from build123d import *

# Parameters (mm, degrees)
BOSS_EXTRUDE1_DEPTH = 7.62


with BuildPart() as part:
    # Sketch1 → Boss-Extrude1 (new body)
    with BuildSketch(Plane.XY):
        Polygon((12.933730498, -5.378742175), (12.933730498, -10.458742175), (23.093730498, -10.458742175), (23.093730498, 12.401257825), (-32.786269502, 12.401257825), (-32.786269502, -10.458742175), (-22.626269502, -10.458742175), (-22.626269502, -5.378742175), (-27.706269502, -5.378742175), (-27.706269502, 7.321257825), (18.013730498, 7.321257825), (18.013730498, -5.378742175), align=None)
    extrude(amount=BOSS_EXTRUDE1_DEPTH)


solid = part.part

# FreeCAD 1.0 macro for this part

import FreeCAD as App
import Part
import Sketcher

V = App.Vector
Q = App.Units.Quantity


def add_polygon(sketch, points):
    """Adds a closed chain of lines whose ends are joined by coincident constraints."""
    first, n = sketch.GeometryCount, len(points)
    for a, b in zip(points, points[1:] + points[:1]):
        sketch.addGeometry(Part.LineSegment(App.Vector(*a, 0), App.Vector(*b, 0)), False)
    for i in range(n):
        sketch.addConstraint(Sketcher.Constraint("Coincident", first + i, 2, first + (i + 1) % n, 1))

doc = App.newDocument("Part")
body = doc.addObject("PartDesign::Body", "Body")

# Sketch on XY plane
sketch1 = body.newObject("Sketcher::SketchObject", "Sketch")
sketch1.AttachmentSupport = (doc.getObject("XY_Plane"), [""])
sketch1.MapMode = "FlatFace"
add_polygon(sketch1, [(13, -5), (13, -10), (23, -10), (23, 12), (-33, 12), (-33, -10), (-23, -10), (-23, -5), (-28, -5), (-28, 7), (18, 7), (18, -5)])  # lines 0-11
sketch1.addConstraint(Sketcher.Constraint("Vertical", 0))
sketch1.addConstraint(Sketcher.Constraint("Horizontal", 1))
sketch1.addConstraint(Sketcher.Constraint("Vertical", 2))
sketch1.addConstraint(Sketcher.Constraint("Horizontal", 3))
sketch1.addConstraint(Sketcher.Constraint("Vertical", 4))
sketch1.addConstraint(Sketcher.Constraint("Horizontal", 5))
sketch1.addConstraint(Sketcher.Constraint("Vertical", 6))
sketch1.addConstraint(Sketcher.Constraint("Horizontal", 7))
sketch1.addConstraint(Sketcher.Constraint("Vertical", 8))
sketch1.addConstraint(Sketcher.Constraint("Horizontal", 9))
sketch1.addConstraint(Sketcher.Constraint("Vertical", 10))
sketch1.addConstraint(Sketcher.Constraint("Horizontal", 11))
sketch1.addConstraint(Sketcher.Constraint("Horizontal", 1, 2, 4, 2))
sketch1.addConstraint(Sketcher.Constraint("Horizontal", 7, 2, 10, 2))
sketch1.addConstraint(Sketcher.Constraint("Equal", 1, 5))
sketch1.addConstraint(Sketcher.Constraint("Equal", 7, 11))
sketch1.addConstraint(Sketcher.Constraint("Equal", 11, 0))
sketch1.addConstraint(Sketcher.Constraint("DistanceX", 1, 1, 1, 2, Q("0.4 in")))
sketch1.addConstraint(Sketcher.Constraint("DistanceX", 3, 2, 3, 1, Q("2.2 in")))
sketch1.addConstraint(Sketcher.Constraint("DistanceX", 7, 2, 7, 1, Q("0.2 in")))
sketch1.addConstraint(Sketcher.Constraint("DistanceY", 2, 1, 2, 2, Q("0.9 in")))
sketch1.addConstraint(Sketcher.Constraint("DistanceY", 8, 1, 8, 2, Q("0.5 in")))
sketch1.addConstraint(Sketcher.Constraint("DistanceX", -1, 1, 0, 2, Q("12.93373 mm")))
sketch1.addConstraint(Sketcher.Constraint("DistanceY", 0, 2, -1, 1, Q("10.458742 mm")))
pad1 = body.newObject("PartDesign::Pad", "Pad")
pad1.Profile = sketch1
pad1.Length = Q("0.3 in")

doc.recompute()
